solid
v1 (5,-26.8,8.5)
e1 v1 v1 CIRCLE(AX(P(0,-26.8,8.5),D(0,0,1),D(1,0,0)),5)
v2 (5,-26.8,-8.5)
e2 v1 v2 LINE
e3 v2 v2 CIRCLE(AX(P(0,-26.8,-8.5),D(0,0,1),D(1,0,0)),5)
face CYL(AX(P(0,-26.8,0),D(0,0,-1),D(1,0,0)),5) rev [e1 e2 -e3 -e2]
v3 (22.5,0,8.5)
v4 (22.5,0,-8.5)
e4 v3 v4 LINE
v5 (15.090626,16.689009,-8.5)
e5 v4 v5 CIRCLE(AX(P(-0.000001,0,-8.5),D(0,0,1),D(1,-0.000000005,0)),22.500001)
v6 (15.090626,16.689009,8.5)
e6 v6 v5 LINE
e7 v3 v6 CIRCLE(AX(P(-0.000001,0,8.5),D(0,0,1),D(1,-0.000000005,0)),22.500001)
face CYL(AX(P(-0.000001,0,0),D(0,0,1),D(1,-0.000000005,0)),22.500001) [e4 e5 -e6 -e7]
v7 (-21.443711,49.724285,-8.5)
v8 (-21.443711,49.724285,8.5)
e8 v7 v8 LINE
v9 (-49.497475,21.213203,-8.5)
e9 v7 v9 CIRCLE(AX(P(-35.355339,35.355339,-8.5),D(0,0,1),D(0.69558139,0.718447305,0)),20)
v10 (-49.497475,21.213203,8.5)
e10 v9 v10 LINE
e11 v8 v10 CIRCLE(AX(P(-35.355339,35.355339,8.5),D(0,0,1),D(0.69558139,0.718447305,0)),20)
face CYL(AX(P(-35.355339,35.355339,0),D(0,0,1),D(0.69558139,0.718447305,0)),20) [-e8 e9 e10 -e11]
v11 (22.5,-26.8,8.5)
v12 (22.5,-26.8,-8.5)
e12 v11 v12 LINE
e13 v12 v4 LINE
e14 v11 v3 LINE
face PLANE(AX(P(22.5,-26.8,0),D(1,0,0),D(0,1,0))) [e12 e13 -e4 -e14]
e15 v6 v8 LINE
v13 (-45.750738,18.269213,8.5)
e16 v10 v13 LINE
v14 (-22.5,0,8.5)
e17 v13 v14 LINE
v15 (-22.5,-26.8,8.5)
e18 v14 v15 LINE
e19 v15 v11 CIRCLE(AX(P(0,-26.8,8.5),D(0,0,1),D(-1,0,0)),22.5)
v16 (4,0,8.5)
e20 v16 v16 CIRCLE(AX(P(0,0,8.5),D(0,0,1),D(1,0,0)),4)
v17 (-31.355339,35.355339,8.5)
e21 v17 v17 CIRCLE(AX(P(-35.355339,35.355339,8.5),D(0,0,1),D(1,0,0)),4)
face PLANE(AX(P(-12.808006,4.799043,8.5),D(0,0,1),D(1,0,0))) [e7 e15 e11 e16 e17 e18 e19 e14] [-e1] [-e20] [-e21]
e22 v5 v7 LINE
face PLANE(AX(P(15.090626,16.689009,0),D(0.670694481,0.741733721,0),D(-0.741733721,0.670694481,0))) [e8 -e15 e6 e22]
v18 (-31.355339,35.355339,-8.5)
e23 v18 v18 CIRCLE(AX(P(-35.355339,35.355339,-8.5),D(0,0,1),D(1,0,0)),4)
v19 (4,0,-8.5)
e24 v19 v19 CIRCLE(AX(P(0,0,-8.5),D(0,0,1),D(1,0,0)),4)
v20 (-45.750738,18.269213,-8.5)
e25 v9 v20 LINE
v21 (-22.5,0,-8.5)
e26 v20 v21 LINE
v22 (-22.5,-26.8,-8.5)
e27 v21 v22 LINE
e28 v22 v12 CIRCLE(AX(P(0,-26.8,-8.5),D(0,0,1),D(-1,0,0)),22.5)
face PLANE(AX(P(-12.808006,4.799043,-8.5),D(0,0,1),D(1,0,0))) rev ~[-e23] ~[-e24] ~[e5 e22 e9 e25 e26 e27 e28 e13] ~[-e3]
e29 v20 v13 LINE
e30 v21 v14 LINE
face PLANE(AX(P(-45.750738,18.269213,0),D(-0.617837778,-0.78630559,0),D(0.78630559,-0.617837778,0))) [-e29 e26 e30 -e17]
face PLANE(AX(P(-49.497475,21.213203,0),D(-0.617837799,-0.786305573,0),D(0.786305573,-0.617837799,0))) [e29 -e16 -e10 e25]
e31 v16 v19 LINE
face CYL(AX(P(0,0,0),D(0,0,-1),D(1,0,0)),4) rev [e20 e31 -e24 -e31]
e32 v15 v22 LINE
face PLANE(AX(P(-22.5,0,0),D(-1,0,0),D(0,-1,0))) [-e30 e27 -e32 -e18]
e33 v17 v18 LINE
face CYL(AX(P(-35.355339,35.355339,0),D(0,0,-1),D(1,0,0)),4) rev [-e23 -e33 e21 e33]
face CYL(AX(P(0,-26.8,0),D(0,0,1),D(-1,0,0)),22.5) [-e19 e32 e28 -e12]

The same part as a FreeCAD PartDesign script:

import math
import FreeCAD as App
import Part
import Sketcher

V = App.Vector

doc = App.newDocument("Part")
body = doc.addObject("PartDesign::Body", "Body")

# Sketch on XY plane
sketch1 = body.newObject("Sketcher::SketchObject", "Sketch")
sketch1.AttachmentSupport = (doc.getObject("XY_Plane"), [""])
sketch1.MapMode = "FlatFace"
sketch1.addGeometry([
    Part.LineSegment(V(15.1, 16.7, 0), V(-21.4, 49.7, 0)),  # 0
    Part.ArcOfCircle(Part.Circle(V(-35.4, 35.4, 0), V(0, 0, 1), 20), math.radians(46), math.radians(225)),  # 1
    Part.LineSegment(V(-49.5, 21.2, 0), V(-45.8, 18.3, 0)),  # 2
    Part.LineSegment(V(-45.8, 18.3, 0), V(-22.5, 0, 0)),  # 3
    Part.LineSegment(V(-22.5, 0, 0), V(-22.5, -26.8, 0)),  # 4
    Part.ArcOfCircle(Part.Circle(V(0, -26.8, 0), V(0, 0, 1), 22.5), math.radians(180), math.radians(360)),  # 5
    Part.LineSegment(V(22.5, -26.8, 0), V(22.5, 0, 0)),  # 6
    Part.ArcOfCircle(Part.Circle(V(0, 0, 0), V(0, 0, 1), 22.5), math.radians(0), math.radians(48)),  # 7
    Part.Circle(V(0, -26.8, 0), V(0, 0, 1), 5),  # 8
    Part.Circle(V(0, 0, 0), V(0, 0, 1), 4),  # 9
    Part.Circle(V(-35.4, 35.4, 0), V(0, 0, 1), 4),  # 10
], False)
sketch1.addConstraint([
    Sketcher.Constraint("Coincident", 0, 2, 1, 1),
    Sketcher.Constraint("Coincident", 1, 2, 2, 1),
    Sketcher.Constraint("Coincident", 2, 2, 3, 1),
    Sketcher.Constraint("Coincident", 3, 2, 4, 1),
    Sketcher.Constraint("Tangent", 4, 2, 5, 1),
    Sketcher.Constraint("Tangent", 5, 2, 6, 1),
    Sketcher.Constraint("Tangent", 6, 2, 7, 1),
    Sketcher.Constraint("Tangent", 7, 2, 0, 1),
    Sketcher.Constraint("Vertical", 4),
    Sketcher.Constraint("Vertical", 6),
    Sketcher.Constraint("Coincident", 7, 3, -1, 1),
    Sketcher.Constraint("Coincident", 9, 3, -1, 1),
    Sketcher.Constraint("Coincident", 8, 3, 5, 3),
    Sketcher.Constraint("Coincident", 10, 3, 1, 3),
    Sketcher.Constraint("Equal", 5, 7),
    Sketcher.Constraint("Equal", 9, 10),
    Sketcher.Constraint("PointOnObject", 3, 2, -1),
    Sketcher.Constraint("Parallel", 2, 3),
    Sketcher.Constraint("Diameter", 8, 10.0),
    Sketcher.Constraint("Diameter", 9, 8.0),
    Sketcher.Constraint("Radius", 1, 20.0),
    Sketcher.Constraint("Radius", 5, 22.5),
    Sketcher.Constraint("DistanceY", 4, 2, 4, 1, 26.8),
    Sketcher.Constraint("DistanceX", 2, 2, 1, 3, 10.395399),
    Sketcher.Constraint("Distance", 2, 4.764988),
    Sketcher.Constraint("DistanceX", 1, 3, -1, 1, 35.355339),
    Sketcher.Constraint("DistanceY", -1, 1, 1, 3, 35.355339),
    Sketcher.Constraint("DistanceX", 0, 2, -1, 1, 21.443711),
])
pad1 = body.newObject("PartDesign::Pad", "Pad")
pad1.Profile = sketch1
pad1.Length = 17
pad1.Midplane = True

doc.recompute()
